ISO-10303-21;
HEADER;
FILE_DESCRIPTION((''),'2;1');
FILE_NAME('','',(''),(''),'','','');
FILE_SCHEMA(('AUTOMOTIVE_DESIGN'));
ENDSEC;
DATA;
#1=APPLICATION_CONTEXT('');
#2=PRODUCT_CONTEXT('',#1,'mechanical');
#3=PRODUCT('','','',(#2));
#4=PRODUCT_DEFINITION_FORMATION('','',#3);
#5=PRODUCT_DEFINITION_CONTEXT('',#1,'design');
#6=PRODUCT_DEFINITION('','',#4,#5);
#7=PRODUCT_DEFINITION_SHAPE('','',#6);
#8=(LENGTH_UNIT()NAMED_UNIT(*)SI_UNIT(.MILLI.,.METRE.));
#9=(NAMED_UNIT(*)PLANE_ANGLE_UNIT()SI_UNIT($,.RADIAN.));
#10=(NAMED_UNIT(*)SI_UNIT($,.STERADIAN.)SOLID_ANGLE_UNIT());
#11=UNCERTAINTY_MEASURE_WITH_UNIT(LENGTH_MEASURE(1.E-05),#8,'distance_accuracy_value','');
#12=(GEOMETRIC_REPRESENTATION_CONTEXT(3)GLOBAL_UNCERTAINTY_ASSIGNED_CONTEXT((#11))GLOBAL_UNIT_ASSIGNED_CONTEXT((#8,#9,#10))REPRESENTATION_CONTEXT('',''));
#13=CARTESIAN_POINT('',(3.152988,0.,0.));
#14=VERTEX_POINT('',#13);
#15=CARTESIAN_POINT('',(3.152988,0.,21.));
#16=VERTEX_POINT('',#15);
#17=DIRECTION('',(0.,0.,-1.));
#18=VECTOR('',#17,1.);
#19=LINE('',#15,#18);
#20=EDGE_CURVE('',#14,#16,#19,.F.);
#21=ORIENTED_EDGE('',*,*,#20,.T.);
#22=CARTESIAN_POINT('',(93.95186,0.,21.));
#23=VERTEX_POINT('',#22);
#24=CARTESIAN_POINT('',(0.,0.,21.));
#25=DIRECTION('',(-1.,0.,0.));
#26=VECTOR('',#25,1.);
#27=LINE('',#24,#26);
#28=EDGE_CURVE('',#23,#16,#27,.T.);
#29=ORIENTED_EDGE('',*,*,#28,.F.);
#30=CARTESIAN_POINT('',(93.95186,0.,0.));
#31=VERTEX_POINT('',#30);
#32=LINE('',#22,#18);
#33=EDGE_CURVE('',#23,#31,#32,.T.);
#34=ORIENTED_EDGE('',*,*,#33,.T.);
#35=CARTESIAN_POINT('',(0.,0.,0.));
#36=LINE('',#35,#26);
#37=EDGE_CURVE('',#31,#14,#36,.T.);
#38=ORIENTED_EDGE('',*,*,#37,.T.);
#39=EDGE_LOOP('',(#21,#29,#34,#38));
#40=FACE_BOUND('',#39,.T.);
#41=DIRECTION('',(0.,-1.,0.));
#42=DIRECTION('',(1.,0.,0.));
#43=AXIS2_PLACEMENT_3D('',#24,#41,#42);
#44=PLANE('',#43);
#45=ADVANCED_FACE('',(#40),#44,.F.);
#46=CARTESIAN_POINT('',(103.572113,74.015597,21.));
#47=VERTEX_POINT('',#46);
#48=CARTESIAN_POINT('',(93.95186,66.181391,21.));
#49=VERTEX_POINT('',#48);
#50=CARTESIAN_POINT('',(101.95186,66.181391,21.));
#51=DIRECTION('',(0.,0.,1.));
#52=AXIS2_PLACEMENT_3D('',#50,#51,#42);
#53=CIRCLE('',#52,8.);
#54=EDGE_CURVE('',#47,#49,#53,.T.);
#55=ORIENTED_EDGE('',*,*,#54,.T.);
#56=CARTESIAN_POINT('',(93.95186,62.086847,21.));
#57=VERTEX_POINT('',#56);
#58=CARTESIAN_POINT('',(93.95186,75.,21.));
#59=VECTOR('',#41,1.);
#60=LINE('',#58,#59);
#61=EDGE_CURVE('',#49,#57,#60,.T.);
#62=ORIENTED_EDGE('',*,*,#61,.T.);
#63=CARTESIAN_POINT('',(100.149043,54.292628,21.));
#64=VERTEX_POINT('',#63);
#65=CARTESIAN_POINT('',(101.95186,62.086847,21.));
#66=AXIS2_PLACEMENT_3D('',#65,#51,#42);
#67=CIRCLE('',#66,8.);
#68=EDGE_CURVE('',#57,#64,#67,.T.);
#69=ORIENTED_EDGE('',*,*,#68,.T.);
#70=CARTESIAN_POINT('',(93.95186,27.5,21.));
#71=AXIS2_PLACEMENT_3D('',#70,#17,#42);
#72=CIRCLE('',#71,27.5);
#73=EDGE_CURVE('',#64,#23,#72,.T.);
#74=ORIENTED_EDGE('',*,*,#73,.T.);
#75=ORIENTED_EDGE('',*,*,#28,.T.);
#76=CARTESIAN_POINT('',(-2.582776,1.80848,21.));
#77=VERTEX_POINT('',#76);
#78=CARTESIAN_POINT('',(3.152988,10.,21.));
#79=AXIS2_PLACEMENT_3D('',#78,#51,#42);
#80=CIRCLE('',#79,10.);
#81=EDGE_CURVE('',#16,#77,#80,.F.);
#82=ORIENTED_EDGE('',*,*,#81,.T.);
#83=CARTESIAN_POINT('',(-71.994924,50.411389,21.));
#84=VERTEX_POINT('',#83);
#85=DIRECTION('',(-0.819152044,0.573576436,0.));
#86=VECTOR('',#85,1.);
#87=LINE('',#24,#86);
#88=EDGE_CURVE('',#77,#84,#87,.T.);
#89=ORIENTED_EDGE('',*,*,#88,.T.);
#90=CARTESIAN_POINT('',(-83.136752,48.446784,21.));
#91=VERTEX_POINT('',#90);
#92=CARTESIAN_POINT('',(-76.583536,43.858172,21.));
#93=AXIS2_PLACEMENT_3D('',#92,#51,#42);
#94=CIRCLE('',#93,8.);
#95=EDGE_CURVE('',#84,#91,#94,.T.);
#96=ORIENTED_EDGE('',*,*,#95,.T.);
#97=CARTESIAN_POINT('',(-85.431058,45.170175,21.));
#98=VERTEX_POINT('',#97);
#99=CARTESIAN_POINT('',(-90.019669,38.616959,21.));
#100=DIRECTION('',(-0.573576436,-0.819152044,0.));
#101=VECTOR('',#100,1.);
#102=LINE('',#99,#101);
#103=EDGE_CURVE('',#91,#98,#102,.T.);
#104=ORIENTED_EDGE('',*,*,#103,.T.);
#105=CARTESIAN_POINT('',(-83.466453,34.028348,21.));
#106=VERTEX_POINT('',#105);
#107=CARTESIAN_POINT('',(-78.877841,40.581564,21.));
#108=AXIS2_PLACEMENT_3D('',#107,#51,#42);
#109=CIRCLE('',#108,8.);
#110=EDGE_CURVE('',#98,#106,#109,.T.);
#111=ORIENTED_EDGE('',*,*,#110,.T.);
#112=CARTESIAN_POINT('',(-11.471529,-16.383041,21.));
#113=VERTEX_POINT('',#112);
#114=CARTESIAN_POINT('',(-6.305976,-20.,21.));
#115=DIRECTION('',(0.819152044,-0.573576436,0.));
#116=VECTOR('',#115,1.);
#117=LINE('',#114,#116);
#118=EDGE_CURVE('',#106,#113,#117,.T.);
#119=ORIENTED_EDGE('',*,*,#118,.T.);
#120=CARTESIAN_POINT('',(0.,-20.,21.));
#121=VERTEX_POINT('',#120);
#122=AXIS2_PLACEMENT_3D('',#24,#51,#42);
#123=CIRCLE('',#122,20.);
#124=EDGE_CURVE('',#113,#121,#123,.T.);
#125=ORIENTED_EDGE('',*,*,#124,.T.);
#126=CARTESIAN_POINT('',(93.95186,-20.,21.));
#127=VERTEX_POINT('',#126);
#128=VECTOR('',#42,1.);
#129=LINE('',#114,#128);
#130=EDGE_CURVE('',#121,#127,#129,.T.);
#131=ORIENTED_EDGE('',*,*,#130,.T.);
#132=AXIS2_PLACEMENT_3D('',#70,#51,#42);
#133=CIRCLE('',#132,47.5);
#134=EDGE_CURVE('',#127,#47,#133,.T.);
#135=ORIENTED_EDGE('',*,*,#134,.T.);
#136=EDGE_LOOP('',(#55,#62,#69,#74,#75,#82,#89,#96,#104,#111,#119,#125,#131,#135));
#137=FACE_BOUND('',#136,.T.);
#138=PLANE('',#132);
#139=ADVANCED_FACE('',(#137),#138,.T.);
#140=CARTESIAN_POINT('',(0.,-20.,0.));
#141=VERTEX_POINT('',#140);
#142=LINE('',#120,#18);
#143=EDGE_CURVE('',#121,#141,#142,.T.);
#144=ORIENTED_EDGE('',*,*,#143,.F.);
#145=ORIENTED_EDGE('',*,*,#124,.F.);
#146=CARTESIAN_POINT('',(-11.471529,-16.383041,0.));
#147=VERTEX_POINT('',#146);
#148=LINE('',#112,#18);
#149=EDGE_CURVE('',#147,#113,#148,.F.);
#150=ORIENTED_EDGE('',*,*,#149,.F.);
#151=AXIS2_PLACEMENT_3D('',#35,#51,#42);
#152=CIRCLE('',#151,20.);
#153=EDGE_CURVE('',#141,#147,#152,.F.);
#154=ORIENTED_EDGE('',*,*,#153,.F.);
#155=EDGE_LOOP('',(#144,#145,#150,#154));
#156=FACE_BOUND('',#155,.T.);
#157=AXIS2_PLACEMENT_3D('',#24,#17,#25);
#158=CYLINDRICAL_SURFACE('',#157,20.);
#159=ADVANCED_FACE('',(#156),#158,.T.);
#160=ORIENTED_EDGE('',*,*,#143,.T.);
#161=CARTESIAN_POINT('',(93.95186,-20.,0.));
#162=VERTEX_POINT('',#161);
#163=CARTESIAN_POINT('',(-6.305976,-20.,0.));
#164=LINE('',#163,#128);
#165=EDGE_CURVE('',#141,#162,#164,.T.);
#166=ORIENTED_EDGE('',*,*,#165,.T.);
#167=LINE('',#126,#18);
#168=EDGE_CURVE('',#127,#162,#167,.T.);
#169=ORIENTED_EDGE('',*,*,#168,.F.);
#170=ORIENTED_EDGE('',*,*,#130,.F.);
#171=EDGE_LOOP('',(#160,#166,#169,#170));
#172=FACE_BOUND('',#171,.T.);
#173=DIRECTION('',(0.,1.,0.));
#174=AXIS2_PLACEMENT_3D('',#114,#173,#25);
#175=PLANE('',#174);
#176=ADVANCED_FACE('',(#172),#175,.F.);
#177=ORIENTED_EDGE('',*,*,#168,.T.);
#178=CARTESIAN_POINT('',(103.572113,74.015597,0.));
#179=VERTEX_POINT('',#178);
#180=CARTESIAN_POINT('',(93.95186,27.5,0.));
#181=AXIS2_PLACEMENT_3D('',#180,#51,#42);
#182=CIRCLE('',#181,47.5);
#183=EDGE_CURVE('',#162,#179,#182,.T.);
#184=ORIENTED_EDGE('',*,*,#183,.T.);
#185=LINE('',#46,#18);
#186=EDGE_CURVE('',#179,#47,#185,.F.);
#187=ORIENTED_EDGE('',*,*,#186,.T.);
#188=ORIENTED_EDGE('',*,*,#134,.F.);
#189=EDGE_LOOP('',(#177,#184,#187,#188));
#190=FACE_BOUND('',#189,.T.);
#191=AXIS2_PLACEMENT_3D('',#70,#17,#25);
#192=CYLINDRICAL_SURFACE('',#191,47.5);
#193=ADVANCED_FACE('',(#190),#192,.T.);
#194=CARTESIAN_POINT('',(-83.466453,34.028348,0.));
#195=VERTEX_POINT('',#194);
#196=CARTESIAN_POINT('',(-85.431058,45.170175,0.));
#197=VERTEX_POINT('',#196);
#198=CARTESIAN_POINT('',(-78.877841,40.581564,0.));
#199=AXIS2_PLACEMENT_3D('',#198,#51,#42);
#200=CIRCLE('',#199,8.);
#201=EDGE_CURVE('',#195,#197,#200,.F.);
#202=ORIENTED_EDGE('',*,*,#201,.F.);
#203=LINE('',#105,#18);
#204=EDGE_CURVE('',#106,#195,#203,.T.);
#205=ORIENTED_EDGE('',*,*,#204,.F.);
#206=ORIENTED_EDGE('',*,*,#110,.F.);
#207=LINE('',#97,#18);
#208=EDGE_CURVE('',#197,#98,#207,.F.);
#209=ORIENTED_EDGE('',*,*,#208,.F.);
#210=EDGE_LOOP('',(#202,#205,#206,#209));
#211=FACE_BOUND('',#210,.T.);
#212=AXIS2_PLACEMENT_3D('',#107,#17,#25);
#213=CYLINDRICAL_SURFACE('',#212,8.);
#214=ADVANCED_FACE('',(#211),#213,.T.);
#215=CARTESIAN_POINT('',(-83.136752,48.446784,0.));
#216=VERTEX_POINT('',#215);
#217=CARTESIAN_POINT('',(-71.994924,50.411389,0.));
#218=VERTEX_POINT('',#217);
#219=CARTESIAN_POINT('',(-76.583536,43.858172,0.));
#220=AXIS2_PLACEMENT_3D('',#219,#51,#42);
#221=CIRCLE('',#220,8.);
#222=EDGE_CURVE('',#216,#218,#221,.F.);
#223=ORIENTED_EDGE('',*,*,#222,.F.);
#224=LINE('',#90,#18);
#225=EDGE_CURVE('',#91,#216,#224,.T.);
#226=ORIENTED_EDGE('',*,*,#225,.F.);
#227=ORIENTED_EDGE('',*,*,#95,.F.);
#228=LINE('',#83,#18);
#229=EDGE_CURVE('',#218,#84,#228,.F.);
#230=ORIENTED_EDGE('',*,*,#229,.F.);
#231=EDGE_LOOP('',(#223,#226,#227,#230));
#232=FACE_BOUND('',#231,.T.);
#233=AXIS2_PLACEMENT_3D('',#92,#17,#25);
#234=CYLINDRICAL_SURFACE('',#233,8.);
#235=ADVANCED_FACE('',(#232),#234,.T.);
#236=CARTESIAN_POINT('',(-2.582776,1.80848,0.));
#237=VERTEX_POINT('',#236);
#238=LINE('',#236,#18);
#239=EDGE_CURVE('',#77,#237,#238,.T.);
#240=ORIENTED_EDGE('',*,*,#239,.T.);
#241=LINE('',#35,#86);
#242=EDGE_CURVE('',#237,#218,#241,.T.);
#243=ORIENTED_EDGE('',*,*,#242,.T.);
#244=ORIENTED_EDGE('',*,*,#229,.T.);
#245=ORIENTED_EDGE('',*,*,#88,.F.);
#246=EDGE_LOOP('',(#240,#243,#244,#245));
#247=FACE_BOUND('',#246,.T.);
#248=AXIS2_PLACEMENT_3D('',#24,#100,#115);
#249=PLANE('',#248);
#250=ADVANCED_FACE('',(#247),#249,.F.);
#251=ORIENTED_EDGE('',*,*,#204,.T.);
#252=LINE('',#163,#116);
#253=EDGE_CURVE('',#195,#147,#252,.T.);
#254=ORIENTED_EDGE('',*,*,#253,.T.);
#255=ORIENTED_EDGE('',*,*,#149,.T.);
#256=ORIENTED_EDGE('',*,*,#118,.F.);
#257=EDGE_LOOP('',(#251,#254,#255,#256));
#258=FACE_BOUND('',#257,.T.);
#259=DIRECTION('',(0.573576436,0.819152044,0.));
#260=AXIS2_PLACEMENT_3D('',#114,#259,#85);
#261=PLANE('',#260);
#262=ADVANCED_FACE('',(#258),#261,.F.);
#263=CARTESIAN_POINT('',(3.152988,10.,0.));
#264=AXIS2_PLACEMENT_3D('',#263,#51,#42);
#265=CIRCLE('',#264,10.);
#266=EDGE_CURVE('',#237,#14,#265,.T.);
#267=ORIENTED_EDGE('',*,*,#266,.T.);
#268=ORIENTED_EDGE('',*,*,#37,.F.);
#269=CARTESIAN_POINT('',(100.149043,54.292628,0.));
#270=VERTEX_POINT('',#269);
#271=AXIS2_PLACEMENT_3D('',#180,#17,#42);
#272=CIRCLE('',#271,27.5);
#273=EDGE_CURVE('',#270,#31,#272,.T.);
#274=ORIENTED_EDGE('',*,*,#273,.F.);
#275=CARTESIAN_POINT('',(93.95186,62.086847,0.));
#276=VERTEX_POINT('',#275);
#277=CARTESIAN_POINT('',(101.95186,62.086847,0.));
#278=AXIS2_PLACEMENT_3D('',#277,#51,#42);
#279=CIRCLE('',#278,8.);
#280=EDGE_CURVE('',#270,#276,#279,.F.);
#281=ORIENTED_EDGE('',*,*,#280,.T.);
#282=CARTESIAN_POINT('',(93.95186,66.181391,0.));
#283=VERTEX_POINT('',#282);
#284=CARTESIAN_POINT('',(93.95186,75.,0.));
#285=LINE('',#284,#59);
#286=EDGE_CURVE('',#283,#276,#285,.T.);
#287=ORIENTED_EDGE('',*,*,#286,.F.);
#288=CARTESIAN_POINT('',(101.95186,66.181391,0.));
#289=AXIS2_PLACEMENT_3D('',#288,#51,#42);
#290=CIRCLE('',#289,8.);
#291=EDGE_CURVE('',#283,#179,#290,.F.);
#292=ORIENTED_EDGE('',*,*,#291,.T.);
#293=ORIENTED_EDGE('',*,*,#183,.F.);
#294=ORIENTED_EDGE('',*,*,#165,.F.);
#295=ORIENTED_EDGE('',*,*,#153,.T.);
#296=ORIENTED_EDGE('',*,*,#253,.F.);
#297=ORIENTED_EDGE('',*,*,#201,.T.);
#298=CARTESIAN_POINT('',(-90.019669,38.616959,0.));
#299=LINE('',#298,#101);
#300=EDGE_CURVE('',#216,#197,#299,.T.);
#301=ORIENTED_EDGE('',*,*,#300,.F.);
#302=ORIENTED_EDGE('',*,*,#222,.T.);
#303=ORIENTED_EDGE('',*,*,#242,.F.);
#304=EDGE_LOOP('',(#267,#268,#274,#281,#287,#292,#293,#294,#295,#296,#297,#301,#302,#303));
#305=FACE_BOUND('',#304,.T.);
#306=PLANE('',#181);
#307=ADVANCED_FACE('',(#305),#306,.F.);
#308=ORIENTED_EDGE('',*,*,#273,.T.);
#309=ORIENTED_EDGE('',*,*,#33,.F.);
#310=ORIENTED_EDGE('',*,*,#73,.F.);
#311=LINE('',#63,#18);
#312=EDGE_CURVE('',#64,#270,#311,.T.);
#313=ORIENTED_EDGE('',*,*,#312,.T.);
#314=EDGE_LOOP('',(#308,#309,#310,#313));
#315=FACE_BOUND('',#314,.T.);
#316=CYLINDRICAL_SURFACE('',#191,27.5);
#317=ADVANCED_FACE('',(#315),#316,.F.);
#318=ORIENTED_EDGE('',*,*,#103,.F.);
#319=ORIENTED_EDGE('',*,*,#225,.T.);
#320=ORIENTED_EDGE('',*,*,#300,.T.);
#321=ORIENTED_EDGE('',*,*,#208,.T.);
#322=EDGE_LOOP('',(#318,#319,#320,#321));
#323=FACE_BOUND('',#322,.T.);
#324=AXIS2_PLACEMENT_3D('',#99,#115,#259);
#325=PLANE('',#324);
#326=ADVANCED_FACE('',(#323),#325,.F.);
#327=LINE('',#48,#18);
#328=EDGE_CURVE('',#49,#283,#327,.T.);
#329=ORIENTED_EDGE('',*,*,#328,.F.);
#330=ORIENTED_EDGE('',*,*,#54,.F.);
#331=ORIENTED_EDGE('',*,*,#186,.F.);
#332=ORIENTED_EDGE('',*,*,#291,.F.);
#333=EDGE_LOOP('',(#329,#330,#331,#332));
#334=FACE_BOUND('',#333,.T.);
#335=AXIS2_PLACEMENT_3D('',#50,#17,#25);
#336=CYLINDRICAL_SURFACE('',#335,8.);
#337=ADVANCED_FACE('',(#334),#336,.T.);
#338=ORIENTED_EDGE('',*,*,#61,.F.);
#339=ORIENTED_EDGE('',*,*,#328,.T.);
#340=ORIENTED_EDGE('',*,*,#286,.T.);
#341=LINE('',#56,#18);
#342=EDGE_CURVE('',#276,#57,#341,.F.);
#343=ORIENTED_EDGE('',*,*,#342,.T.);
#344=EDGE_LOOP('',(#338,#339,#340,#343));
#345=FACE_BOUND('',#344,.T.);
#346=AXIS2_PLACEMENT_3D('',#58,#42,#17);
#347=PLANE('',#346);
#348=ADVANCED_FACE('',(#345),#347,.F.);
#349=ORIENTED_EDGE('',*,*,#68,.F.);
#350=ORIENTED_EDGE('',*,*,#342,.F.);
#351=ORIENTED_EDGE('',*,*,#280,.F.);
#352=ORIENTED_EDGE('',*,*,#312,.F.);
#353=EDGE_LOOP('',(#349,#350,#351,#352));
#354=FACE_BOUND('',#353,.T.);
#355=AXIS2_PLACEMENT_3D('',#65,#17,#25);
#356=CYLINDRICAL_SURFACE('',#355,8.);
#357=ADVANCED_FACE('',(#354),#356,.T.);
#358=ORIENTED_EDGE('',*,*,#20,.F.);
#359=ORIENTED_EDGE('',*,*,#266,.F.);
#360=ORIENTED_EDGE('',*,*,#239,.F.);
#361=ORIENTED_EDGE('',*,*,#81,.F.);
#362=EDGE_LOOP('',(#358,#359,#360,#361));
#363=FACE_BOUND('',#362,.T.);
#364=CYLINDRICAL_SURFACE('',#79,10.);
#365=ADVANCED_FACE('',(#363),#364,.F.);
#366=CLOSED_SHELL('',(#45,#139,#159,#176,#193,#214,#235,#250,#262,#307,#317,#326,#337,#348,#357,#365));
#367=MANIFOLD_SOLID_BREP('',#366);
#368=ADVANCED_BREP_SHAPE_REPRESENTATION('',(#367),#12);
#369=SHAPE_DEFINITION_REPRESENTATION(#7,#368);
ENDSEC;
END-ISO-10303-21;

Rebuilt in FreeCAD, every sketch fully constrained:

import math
import FreeCAD as App
import Part
import Sketcher
from FreeCAD import Vector
Q = App.Units.Quantity


def edges_at(feature, points):
    """Names of the edges that pass closest to the given points."""
    edges = feature.Shape.Edges
    near = lambda p: min(range(len(edges)), key=lambda i: edges[i].distToShape(Part.Vertex(*p))[0])
    return sorted({f"Edge{near(p) + 1}" for p in points})

doc = App.newDocument("Part")
body = doc.addObject("PartDesign::Body", "Body")

sketch1 = body.newObject("Sketcher::SketchObject", "Sketch")
sketch1.AttachmentSupport = (doc.getObject("XY_Plane"), [""])
sketch1.MapMode = "FlatFace"
sketch1.addGeometry([
    Part.LineSegment(Vector(94, 0, 0), Vector(0, 0, 0)),
    Part.LineSegment(Vector(0, 0, 0), Vector(-79, 55, 0)),
    Part.LineSegment(Vector(-79, 55, 0), Vector(-90, 39, 0)),
    Part.LineSegment(Vector(-90, 39, 0), Vector(-6, -20, 0)),
    Part.LineSegment(Vector(-6, -20, 0), Vector(94, -20, 0)),
    Part.ArcOfCircle(Part.Circle(Vector(94, 28, 0), Vector(0, 0, 1), 48), math.radians(-90), math.radians(90)),
    Part.LineSegment(Vector(94, 75, 0), Vector(94, 55, 0)),
    Part.ArcOfCircle(Part.Circle(Vector(94, 28, 0), Vector(0, 0, 1), 28), math.radians(-90), math.radians(90)),
], False)
sketch1.addConstraint([
    Sketcher.Constraint("Coincident", 0, 2, 1, 1),
    Sketcher.Constraint("Coincident", 1, 2, 2, 1),
    Sketcher.Constraint("Coincident", 2, 2, 3, 1),
    Sketcher.Constraint("Coincident", 3, 2, 4, 1),
    Sketcher.Constraint("Tangent", 4, 2, 5, 1),
    Sketcher.Constraint("Coincident", 5, 2, 6, 1),
    Sketcher.Constraint("Coincident", 6, 2, 7, 2),
    Sketcher.Constraint("Tangent", 7, 1, 0, 1),
    Sketcher.Constraint("Horizontal", 0),
    Sketcher.Constraint("Horizontal", 4),
    Sketcher.Constraint("Vertical", 6),
    Sketcher.Constraint("Coincident", 0, 2, -1, 1),
    Sketcher.Constraint("Coincident", 7, 3, 5, 3),
    Sketcher.Constraint("Perpendicular", 1, 2),
    Sketcher.Constraint("Perpendicular", 2, 3),
    Sketcher.Constraint("Horizontal", 1, 2, 6, 2),
    Sketcher.Constraint("Vertical", 4, 2, 5, 2),
    Sketcher.Constraint("Radius", 5, Q("47.5 mm")),
    Sketcher.Constraint("Radius", 7, Q("27.5 mm")),
    Sketcher.Constraint("Angle", 1, Q("145 deg")),
    Sketcher.Constraint("Distance", 2, Q("20 mm")),
    Sketcher.Constraint("DistanceX", 1, 2, 5, 3, Q("172.5 mm")),
])
pad1 = body.newObject("PartDesign::Pad", "Pad")
pad1.Profile = sketch1
pad1.Length = 21
doc.recompute()

fillet = body.newObject("PartDesign::Fillet", "Fillet")
fillet.Base = (pad1, edges_at(pad1, [
    (93.952, 55, 10.5),
    (93.952, 75, 10.5),
    (-90.02, 38.617, 10.5),
    (-78.548, 55, 10.5),
]))
fillet.Radius = 8
doc.recompute()

fillet2 = body.newObject("PartDesign::Fillet", "Fillet001")
fillet2.Base = (fillet, edges_at(fillet, [(-6.306, -20, 10.5)]))
fillet2.Radius = 20
doc.recompute()

fillet3 = body.newObject("PartDesign::Fillet", "Fillet002")
fillet3.Base = (fillet2, edges_at(fillet2, [(0, 0, 10.5)]))
fillet3.Radius = 10

doc.recompute()
